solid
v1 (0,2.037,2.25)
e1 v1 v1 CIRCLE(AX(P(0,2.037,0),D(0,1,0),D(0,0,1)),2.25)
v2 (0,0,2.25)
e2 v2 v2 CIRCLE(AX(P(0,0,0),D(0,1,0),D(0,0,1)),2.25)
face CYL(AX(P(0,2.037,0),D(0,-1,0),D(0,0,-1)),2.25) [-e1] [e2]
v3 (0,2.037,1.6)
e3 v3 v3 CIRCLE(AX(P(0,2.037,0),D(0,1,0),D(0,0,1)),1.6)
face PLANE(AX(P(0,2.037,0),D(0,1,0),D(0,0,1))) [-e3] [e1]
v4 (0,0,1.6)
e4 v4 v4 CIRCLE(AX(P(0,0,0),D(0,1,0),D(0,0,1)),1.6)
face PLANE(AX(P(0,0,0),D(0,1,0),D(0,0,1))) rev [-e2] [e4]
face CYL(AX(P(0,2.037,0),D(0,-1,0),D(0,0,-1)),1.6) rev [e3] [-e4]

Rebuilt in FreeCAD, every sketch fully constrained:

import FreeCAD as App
import Part
import Sketcher
from FreeCAD import Vector
Q = App.Units.Quantity

doc = App.newDocument("Part")
body = doc.addObject("PartDesign::Body", "Body")

# Sketch on XZ plane
sketch1 = body.newObject("Sketcher::SketchObject", "Sketch")
sketch1.AttachmentSupport = (doc.getObject("XZ_Plane"), [""])
sketch1.MapMode = "FlatFace"
sketch1.addGeometry(Part.Circle(Vector(0, 0, 0), Vector(0, 0, 1), 2.2), False)
sketch1.addGeometry(Part.Circle(Vector(0, 0, 0), Vector(0, 0, 1), 1.6), False)
sketch1.addConstraint(Sketcher.Constraint("Coincident", 0, 3, -1, 1))
sketch1.addConstraint(Sketcher.Constraint("Coincident", 1, 3, -1, 1))
sketch1.addConstraint(Sketcher.Constraint("Diameter", 0, Q("4.5 mm")))
sketch1.addConstraint(Sketcher.Constraint("Diameter", 1, Q("3.2 mm")))
pad1 = body.newObject("PartDesign::Pad", "Pad")
pad1.Profile = sketch1
pad1.Length = 2.037
pad1.Reversed = True

doc.recompute()
